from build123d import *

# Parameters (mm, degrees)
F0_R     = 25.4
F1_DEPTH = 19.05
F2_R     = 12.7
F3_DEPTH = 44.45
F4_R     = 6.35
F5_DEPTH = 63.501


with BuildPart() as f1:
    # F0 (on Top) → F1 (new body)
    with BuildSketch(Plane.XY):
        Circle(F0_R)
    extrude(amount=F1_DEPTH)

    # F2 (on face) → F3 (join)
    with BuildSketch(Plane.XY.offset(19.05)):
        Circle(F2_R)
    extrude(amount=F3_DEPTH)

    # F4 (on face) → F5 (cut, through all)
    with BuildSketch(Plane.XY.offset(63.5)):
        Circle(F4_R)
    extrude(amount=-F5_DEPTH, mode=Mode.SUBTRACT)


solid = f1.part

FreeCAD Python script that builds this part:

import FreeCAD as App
import Part
import Sketcher

V = App.Vector
Q = App.Units.Quantity

doc = App.newDocument("Part")
params = doc.addObject("Spreadsheet::Sheet", "Params")
for row, (alias, value) in enumerate([
    ("sketch1_diameter", "2 in"),
    ("pad1_length", "0.75 in"),
    ("sketch2_diameter", "1 in"),
    ("pad2_length", "1.75 in"),
    ("sketch3_diameter", "0.5 in"),
], start=1):
    params.set(f"A{row}", alias)
    params.set(f"B{row}", "=" + value)
    params.setAlias(f"B{row}", alias)

body = doc.addObject("PartDesign::Body", "Body")

sketch1 = doc.addObject("Sketcher::SketchObject", "Sketch")
body.addObject(sketch1)
sketch1.AttachmentSupport = (doc.XY_Plane, [""])
sketch1.MapMode = "FlatFace"
sketch1.addGeometry(Part.Circle(V(0, 0, 0), V(0, 0, 1), 25.4), False)
sketch1.addConstraint(Sketcher.Constraint("Coincident", 0, 3, -1, 1))
sketch1.addConstraint(Sketcher.Constraint("Diameter", 0, Q("2 in")))
sketch1.setExpression("Constraints[1]", "Params.sketch1_diameter")
pad1 = doc.addObject("PartDesign::Pad", "Pad")
body.addObject(pad1)
pad1.Profile = sketch1
pad1.setExpression("Length", "Params.pad1_length")

sketch2 = doc.addObject("Sketcher::SketchObject", "Sketch001")
body.addObject(sketch2)
sketch2.AttachmentSupport = (doc.XY_Plane, [""])
sketch2.MapMode = "FlatFace"
sketch2.AttachmentOffset = App.Placement(V(0, 0, 0.75 * 25.4), App.Rotation())
sketch2.addGeometry(Part.Circle(V(0, 0, 0), V(0, 0, 1), 12.7), False)
sketch2.addConstraint(Sketcher.Constraint("Coincident", 0, 3, -1, 1))
sketch2.addConstraint(Sketcher.Constraint("Diameter", 0, Q("1 in")))
sketch2.setExpression("Constraints[1]", "Params.sketch2_diameter")
pad2 = doc.addObject("PartDesign::Pad", "Pad001")
body.addObject(pad2)
pad2.Profile = sketch2
pad2.setExpression("Length", "Params.pad2_length")

sketch3 = doc.addObject("Sketcher::SketchObject", "Sketch002")
body.addObject(sketch3)
sketch3.AttachmentSupport = (doc.XY_Plane, [""])
sketch3.MapMode = "FlatFace"
sketch3.AttachmentOffset = App.Placement(V(0, 0, 2.5 * 25.4), App.Rotation())
sketch3.addGeometry(Part.Circle(V(0, 0, 0), V(0, 0, 1), 6.35), False)
sketch3.addConstraint(Sketcher.Constraint("Coincident", 0, 3, -1, 1))
sketch3.addConstraint(Sketcher.Constraint("Diameter", 0, Q("0.5 in")))
sketch3.setExpression("Constraints[1]", "Params.sketch3_diameter")
pocket1 = doc.addObject("PartDesign::Pocket", "Pocket")
body.addObject(pocket1)
pocket1.Profile = sketch3
pocket1.Type = "ThroughAll"

doc.recompute()
